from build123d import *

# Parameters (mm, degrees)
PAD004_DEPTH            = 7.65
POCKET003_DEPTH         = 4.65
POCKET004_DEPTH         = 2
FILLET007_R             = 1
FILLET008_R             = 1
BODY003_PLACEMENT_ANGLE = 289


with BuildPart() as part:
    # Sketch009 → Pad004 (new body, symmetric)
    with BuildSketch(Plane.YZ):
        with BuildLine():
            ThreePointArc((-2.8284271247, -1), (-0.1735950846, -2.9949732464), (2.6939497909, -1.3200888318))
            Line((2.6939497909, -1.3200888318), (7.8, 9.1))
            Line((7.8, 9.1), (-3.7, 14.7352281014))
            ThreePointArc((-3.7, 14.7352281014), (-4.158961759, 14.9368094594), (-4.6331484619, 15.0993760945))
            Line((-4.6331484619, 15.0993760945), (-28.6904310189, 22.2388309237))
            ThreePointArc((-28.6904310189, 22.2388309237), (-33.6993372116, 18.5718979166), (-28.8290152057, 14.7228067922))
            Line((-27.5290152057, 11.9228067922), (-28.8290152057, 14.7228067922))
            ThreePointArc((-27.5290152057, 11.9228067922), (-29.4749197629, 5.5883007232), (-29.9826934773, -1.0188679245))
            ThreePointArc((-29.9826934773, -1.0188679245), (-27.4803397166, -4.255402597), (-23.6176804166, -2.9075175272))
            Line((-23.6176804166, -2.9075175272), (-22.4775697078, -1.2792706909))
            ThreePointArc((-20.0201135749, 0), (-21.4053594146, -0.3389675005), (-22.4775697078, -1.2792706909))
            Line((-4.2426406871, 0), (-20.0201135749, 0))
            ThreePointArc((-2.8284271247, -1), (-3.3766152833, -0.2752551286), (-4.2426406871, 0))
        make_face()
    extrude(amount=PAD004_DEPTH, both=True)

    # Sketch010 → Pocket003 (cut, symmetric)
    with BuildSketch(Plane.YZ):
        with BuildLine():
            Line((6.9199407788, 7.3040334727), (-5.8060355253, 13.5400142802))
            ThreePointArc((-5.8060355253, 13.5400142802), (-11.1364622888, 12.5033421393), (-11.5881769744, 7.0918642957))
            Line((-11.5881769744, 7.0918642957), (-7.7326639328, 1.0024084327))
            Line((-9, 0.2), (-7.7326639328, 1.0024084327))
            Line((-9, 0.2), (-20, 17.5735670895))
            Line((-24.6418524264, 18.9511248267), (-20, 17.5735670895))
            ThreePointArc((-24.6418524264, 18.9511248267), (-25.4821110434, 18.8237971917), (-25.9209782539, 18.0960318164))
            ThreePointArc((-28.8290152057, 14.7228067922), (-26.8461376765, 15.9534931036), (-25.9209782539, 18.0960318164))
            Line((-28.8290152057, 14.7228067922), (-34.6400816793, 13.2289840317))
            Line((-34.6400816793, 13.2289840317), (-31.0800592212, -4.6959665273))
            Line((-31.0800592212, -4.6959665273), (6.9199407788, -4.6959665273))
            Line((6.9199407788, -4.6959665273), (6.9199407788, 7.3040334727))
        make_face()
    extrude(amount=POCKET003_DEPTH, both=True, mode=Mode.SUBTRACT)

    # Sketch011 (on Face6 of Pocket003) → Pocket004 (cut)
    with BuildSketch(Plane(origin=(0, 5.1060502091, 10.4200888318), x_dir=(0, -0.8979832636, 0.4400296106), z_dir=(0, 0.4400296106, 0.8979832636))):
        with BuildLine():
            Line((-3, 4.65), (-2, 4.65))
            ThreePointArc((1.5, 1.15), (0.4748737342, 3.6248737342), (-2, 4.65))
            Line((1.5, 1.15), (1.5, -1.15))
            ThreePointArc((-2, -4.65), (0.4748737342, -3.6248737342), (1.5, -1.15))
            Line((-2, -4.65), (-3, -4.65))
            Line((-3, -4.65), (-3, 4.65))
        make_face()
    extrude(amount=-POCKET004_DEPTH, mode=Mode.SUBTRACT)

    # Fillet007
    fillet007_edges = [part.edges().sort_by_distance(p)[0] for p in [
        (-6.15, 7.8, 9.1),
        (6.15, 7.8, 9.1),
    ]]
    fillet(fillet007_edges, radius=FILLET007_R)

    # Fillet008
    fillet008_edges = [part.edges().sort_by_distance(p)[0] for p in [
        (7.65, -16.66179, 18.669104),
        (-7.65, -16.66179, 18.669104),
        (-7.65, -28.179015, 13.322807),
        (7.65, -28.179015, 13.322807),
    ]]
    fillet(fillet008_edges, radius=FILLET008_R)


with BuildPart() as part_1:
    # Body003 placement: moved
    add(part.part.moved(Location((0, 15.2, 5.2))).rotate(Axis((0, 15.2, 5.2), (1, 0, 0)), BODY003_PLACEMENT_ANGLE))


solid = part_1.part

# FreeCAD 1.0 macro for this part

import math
import FreeCAD as App
import Part
import Sketcher

V = App.Vector
Q = App.Units.Quantity


def edges_at(feature, points):
    """Names of the edges that pass closest to the given points."""
    edges = feature.Shape.Edges
    near = lambda p: min(range(len(edges)), key=lambda i: edges[i].distToShape(Part.Vertex(*p))[0])
    return sorted({f"Edge{near(p) + 1}" for p in points})

doc = App.newDocument("Part")
params = doc.addObject("Spreadsheet::Sheet", "Params")
for row, (alias, value) in enumerate([
    ("sketch1_radius", "3 mm"),
    ("sketch1_radius2", "6 mm"),
    ("sketch1_radius3", "30 mm"),
    ("sketch1_radius4", "3.9 mm"),
    ("sketch1_radius5", "3.5 mm"),
    ("pad1_length", "15.3 mm"),
    ("sketch2_radius", "1 mm"),
    ("sketch2_radius2", "4.5 mm"),
    ("sketch2_radius3", "3.9 mm"),
    ("sketch2_width", "38 mm"),
    ("sketch2_height", "12 mm"),
    ("pocket1_length", "9.3 mm"),
    ("sketch3_radius", "3.5 mm"),
    ("sketch3_width", "1 mm"),
    ("sketch3_height", "9.3 mm"),
    ("pocket2_length", "2 mm"),
    ("fillet_radius", "1 mm"),
    ("fillet2_radius", "1 mm"),
], start=1):
    params.set(f"A{row}", alias)
    params.set(f"B{row}", "=" + value)
    params.setAlias(f"B{row}", alias)

body = doc.addObject("PartDesign::Body", "Body")

# Sketch on YZ plane
sketch1 = body.newObject("Sketcher::SketchObject", "Sketch")
sketch1.AttachmentSupport = (doc.getObject("YZ_Plane"), [""])
sketch1.MapMode = "FlatFace"
sketch1.addGeometry(Part.ArcOfCircle(Part.Circle(V(0, 0, 0), V(0, 0, 1), 3), math.radians(-161), math.radians(-26)), False)
sketch1.addGeometry(Part.LineSegment(V(2.7, -1.3, 0), V(7.8, 9.1, 0)), False)
sketch1.addGeometry(Part.LineSegment(V(7.8, 9.1, 0), V(-3.7, 14.7, 0)), False)
sketch1.addGeometry(Part.ArcOfCircle(Part.Circle(V(-6.3, 9.3, 0), V(0, 0, 1), 6), math.radians(63.89), math.radians(73.47)), False)
sketch1.addGeometry(Part.LineSegment(V(-4.6, 15.1, 0), V(-28.7, 22.2, 0)), False)
sketch1.addGeometry(Part.ArcOfCircle(Part.Circle(V(-29.8, 18.5, 0), V(0, 0, 1), 3.9), math.radians(73), math.radians(284)), False)
sketch1.addGeometry(Part.LineSegment(V(-28.8, 14.7, 0), V(-27.5, 11.9, 0)), False)
sketch1.addGeometry(Part.ArcOfCircle(Part.Circle(V(0, 0, 0), V(0, 0, 1), 30), math.radians(157), math.radians(182)), False)
sketch1.addGeometry(Part.ArcOfCircle(Part.Circle(V(-26.5, -0.9, 0), V(0, 0, 1), 3.5), math.radians(-178), math.radians(-35)), False)
sketch1.addGeometry(Part.LineSegment(V(-23.6, -2.9, 0), V(-22.5, -1.3, 0)), False)
sketch1.addGeometry(Part.ArcOfCircle(Part.Circle(V(-20, -3, 0), V(0, 0, 1), 3), math.radians(90), math.radians(145)), False)
sketch1.addGeometry(Part.LineSegment(V(-20, 0, 0), V(-4.2, 0, 0)), False)
sketch1.addGeometry(Part.ArcOfCircle(Part.Circle(V(-4.2, -1.5, 0), V(0, 0, 1), 1.5), math.radians(19), math.radians(90)), False)
sketch1.addConstraint(Sketcher.Constraint("Tangent", 0, 2, 1, 1))
sketch1.addConstraint(Sketcher.Constraint("Coincident", 1, 2, 2, 1))
sketch1.addConstraint(Sketcher.Constraint("Tangent", 2, 2, 3, 1))
sketch1.addConstraint(Sketcher.Constraint("Tangent", 3, 2, 4, 1))
sketch1.addConstraint(Sketcher.Constraint("Tangent", 4, 2, 5, 1))
sketch1.addConstraint(Sketcher.Constraint("Coincident", 5, 2, 6, 1))
sketch1.addConstraint(Sketcher.Constraint("Coincident", 6, 2, 7, 1))
sketch1.addConstraint(Sketcher.Constraint("Tangent", 7, 2, 8, 1))
sketch1.addConstraint(Sketcher.Constraint("Tangent", 8, 2, 9, 1))
sketch1.addConstraint(Sketcher.Constraint("Tangent", 9, 2, 10, 2))
sketch1.addConstraint(Sketcher.Constraint("Tangent", 10, 1, 11, 1))
sketch1.addConstraint(Sketcher.Constraint("Tangent", 11, 2, 12, 2))
sketch1.addConstraint(Sketcher.Constraint("Tangent", 12, 1, 0, 1))
sketch1.addConstraint(Sketcher.Constraint("Horizontal", 11))
sketch1.addConstraint(Sketcher.Constraint("Coincident", 0, 3, -1, 1))
sketch1.addConstraint(Sketcher.Constraint("Coincident", 7, 3, -1, 1))
sketch1.addConstraint(Sketcher.Constraint("Equal", 0, 10))
sketch1.addConstraint(Sketcher.Constraint("PointOnObject", 10, 1, -1))
sketch1.addConstraint(Sketcher.Constraint("Perpendicular", 1, 2))
sketch1.addConstraint(Sketcher.Constraint("Radius", 0, Q("3 mm")))
sketch1.addConstraint(Sketcher.Constraint("Radius", 3, Q("6 mm")))
sketch1.addConstraint(Sketcher.Constraint("Radius", 7, Q("30 mm")))
sketch1.addConstraint(Sketcher.Constraint("Radius", 5, Q("3.9 mm")))
sketch1.addConstraint(Sketcher.Constraint("Radius", 8, Q("3.5 mm")))
sketch1.addConstraint(Sketcher.Constraint("Radius", 12, Q("1.5 mm")))
sketch1.addConstraint(Sketcher.Constraint("Angle", 9, Q("55 deg")))
sketch1.addConstraint(Sketcher.Constraint("DistanceX", 5, 3, -1, 1, Q("29.8 mm")))
sketch1.addConstraint(Sketcher.Constraint("DistanceY", -1, 1, 5, 3, Q("18.5 mm")))
sketch1.addConstraint(Sketcher.Constraint("DistanceY", 8, 3, -1, 1, Q("0.9 mm")))
sketch1.addConstraint(Sketcher.Constraint("DistanceX", -1, 1, 1, 2, Q("7.8 mm")))
sketch1.addConstraint(Sketcher.Constraint("DistanceY", -1, 1, 1, 2, Q("9.1 mm")))
sketch1.addConstraint(Sketcher.Constraint("DistanceX", 2, 2, -1, 1, Q("3.7 mm")))
sketch1.addConstraint(Sketcher.Constraint("DistanceX", 5, 2, 6, 2, Q("1.3 mm")))
sketch1.addConstraint(Sketcher.Constraint("DistanceY", 6, 2, 5, 2, Q("2.8 mm")))
sketch1.setExpression("Constraints[19]", "Params.sketch1_radius")
sketch1.setExpression("Constraints[20]", "Params.sketch1_radius2")
sketch1.setExpression("Constraints[21]", "Params.sketch1_radius3")
sketch1.setExpression("Constraints[22]", "Params.sketch1_radius4")
sketch1.setExpression("Constraints[23]", "Params.sketch1_radius5")
pad1 = body.newObject("PartDesign::Pad", "Pad")
pad1.Profile = sketch1
pad1.setExpression("Length", "Params.pad1_length")
pad1.Midplane = True

# Sketch on YZ plane
sketch2 = body.newObject("Sketcher::SketchObject", "Sketch001")
sketch2.AttachmentSupport = (doc.getObject("YZ_Plane"), [""])
sketch2.MapMode = "FlatFace"
sketch2.addGeometry(Part.LineSegment(V(6.9, 7.3, 0), V(-5.8, 13.5, 0)), False)
sketch2.addGeometry(Part.ArcOfCircle(Part.Circle(V(-7.8, 9.5, 0), V(0, 0, 1), 4.5), math.radians(64), math.radians(212)), False)
sketch2.addGeometry(Part.LineSegment(V(-11.6, 7.1, 0), V(-7.7, 1, 0)), False)
sketch2.addGeometry(Part.LineSegment(V(-7.7, 1, 0), V(-9, 0.2, 0)), False)
sketch2.addGeometry(Part.LineSegment(V(-9, 0.2, 0), V(-20, 17.6, 0)), False)
sketch2.addGeometry(Part.LineSegment(V(-20, 17.6, 0), V(-24.6, 19, 0)), False)
sketch2.addGeometry(Part.ArcOfCircle(Part.Circle(V(-24.9, 18, 0), V(0, 0, 1), 1), math.radians(73), math.radians(174)), False)
sketch2.addGeometry(Part.ArcOfCircle(Part.Circle(V(-29.8, 18.5, 0), V(0, 0, 1), 3.9), math.radians(-76), math.radians(-6)), False)
sketch2.addGeometry(Part.LineSegment(V(-28.8, 14.7, 0), V(-34.6, 13.2, 0)), False)
sketch2.addGeometry(Part.LineSegment(V(-34.6, 13.2, 0), V(-31.1, -4.7, 0)), False)
sketch2.addGeometry(Part.LineSegment(V(-31.1, -4.7, 0), V(6.9, -4.7, 0)), False)
sketch2.addGeometry(Part.LineSegment(V(6.9, -4.7, 0), V(6.9, 7.3, 0)), False)
sketch2.addConstraint(Sketcher.Constraint("Tangent", 0, 2, 1, 1))
sketch2.addConstraint(Sketcher.Constraint("Tangent", 1, 2, 2, 1))
sketch2.addConstraint(Sketcher.Constraint("Coincident", 2, 2, 3, 1))
sketch2.addConstraint(Sketcher.Constraint("Coincident", 3, 2, 4, 1))
sketch2.addConstraint(Sketcher.Constraint("Coincident", 4, 2, 5, 1))
sketch2.addConstraint(Sketcher.Constraint("Tangent", 5, 2, 6, 1))
sketch2.addConstraint(Sketcher.Constraint("Tangent", 6, 2, 7, 2))
sketch2.addConstraint(Sketcher.Constraint("Tangent", 7, 1, 8, 1))
sketch2.addConstraint(Sketcher.Constraint("Coincident", 8, 2, 9, 1))
sketch2.addConstraint(Sketcher.Constraint("Coincident", 9, 2, 10, 1))
sketch2.addConstraint(Sketcher.Constraint("Coincident", 10, 2, 11, 1))
sketch2.addConstraint(Sketcher.Constraint("Coincident", 11, 2, 0, 1))
sketch2.addConstraint(Sketcher.Constraint("Horizontal", 10))
sketch2.addConstraint(Sketcher.Constraint("Vertical", 11))
sketch2.addConstraint(Sketcher.Constraint("Perpendicular", 2, 3))
sketch2.addConstraint(Sketcher.Constraint("Perpendicular", 3, 4))
sketch2.addConstraint(Sketcher.Constraint("Radius", 6, Q("1 mm")))
sketch2.addConstraint(Sketcher.Constraint("Radius", 1, Q("4.5 mm")))
sketch2.addConstraint(Sketcher.Constraint("Radius", 7, Q("3.9 mm")))
sketch2.addConstraint(Sketcher.Constraint("DistanceX", 10, 1, 10, 2, Q("38 mm")))
sketch2.addConstraint(Sketcher.Constraint("DistanceY", 11, 1, 11, 2, Q("12 mm")))
sketch2.addConstraint(Sketcher.Constraint("Distance", 8, Q("6 mm")))
sketch2.addConstraint(Sketcher.Constraint("DistanceX", 3, 2, -1, 1, Q("9 mm")))
sketch2.addConstraint(Sketcher.Constraint("DistanceX", 4, 2, -1, 1, Q("20 mm")))
sketch2.addConstraint(Sketcher.Constraint("Distance", 3, Q("1.5 mm")))
sketch2.addConstraint(Sketcher.Constraint("DistanceX", 7, 3, -1, 1, Q("29.8 mm")))
sketch2.addConstraint(Sketcher.Constraint("DistanceY", -1, 1, 7, 3, Q("18.5 mm")))
sketch2.addConstraint(Sketcher.Constraint("DistanceY", -1, 1, 3, 2, Q("0.2 mm")))
sketch2.addConstraint(Sketcher.Constraint("DistanceX", 6, 2, 1, 2, Q("14.332801 mm")))
sketch2.addConstraint(Sketcher.Constraint("Distance", 0, Q("14.17173 mm")))
sketch2.addConstraint(Sketcher.Constraint("Distance", 2, Q("7.207389 mm")))
sketch2.addConstraint(Sketcher.Constraint("DistanceX", 1, 3, -1, 1, Q("7.786169 mm")))
sketch2.addConstraint(Sketcher.Constraint("DistanceX", 8, 2, -1, 1, Q("34.640082 mm")))
sketch2.addConstraint(Sketcher.Constraint("DistanceX", 9, 2, -1, 1, Q("31.080059 mm")))
sketch2.setExpression("Constraints[16]", "Params.sketch2_radius")
sketch2.setExpression("Constraints[17]", "Params.sketch2_radius2")
sketch2.setExpression("Constraints[18]", "Params.sketch2_radius3")
sketch2.setExpression("Constraints[19]", "Params.sketch2_width")
sketch2.setExpression("Constraints[20]", "Params.sketch2_height")
pocket1 = body.newObject("PartDesign::Pocket", "Pocket")
pocket1.Profile = sketch2
pocket1.setExpression("Length", "Params.pocket1_length")
pocket1.Midplane = True

# Sketch on an angled plane
sketch3 = body.newObject("Sketcher::SketchObject", "Sketch002")
sketch3.Placement = App.Placement(V(0, 5.10605, 10.420089), App.Rotation(V(0, -0.897983264, 0.440029611), V(1.000000001, 0, 0), V(0, 0.440029611, 0.897983264), "ZXY"))
sketch3.addGeometry(Part.LineSegment(V(-2, 4.7, 0), V(-3, 4.7, 0)), False)
sketch3.addGeometry(Part.LineSegment(V(-3, 4.7, 0), V(-3, -4.7, 0)), False)
sketch3.addGeometry(Part.LineSegment(V(-3, -4.7, 0), V(-2, -4.7, 0)), False)
sketch3.addGeometry(Part.ArcOfCircle(Part.Circle(V(-2, -1.2, 0), V(0, 0, 1), 3.5), math.radians(-90), math.radians(0)), False)
sketch3.addGeometry(Part.LineSegment(V(1.5, -1.2, 0), V(1.5, 1.2, 0)), False)
sketch3.addGeometry(Part.ArcOfCircle(Part.Circle(V(-2, 1.2, 0), V(0, 0, 1), 3.5), math.radians(0), math.radians(90)), False)
sketch3.addConstraint(Sketcher.Constraint("Coincident", 0, 2, 1, 1))
sketch3.addConstraint(Sketcher.Constraint("Coincident", 1, 2, 2, 1))
sketch3.addConstraint(Sketcher.Constraint("Tangent", 2, 2, 3, 1))
sketch3.addConstraint(Sketcher.Constraint("Tangent", 3, 2, 4, 1))
sketch3.addConstraint(Sketcher.Constraint("Tangent", 4, 2, 5, 1))
sketch3.addConstraint(Sketcher.Constraint("Tangent", 5, 2, 0, 1))
sketch3.addConstraint(Sketcher.Constraint("Horizontal", 0))
sketch3.addConstraint(Sketcher.Constraint("Vertical", 1))
sketch3.addConstraint(Sketcher.Constraint("Horizontal", 2))
sketch3.addConstraint(Sketcher.Constraint("Vertical", 4))
sketch3.addConstraint(Sketcher.Constraint("Equal", 3, 5))
sketch3.addConstraint(Sketcher.Constraint("Radius", 3, Q("3.5 mm")))
sketch3.addConstraint(Sketcher.Constraint("DistanceX", 0, 2, 0, 1, Q("1 mm")))
sketch3.addConstraint(Sketcher.Constraint("DistanceY", 1, 2, 1, 1, Q("9.3 mm")))
sketch3.addConstraint(Sketcher.Constraint("DistanceX", 3, 3, -1, 1, Q("2 mm")))
sketch3.addConstraint(Sketcher.Constraint("DistanceY", 3, 3, -1, 1, Q("1.15 mm")))
sketch3.setExpression("Constraints[11]", "Params.sketch3_radius")
sketch3.setExpression("Constraints[12]", "Params.sketch3_width")
sketch3.setExpression("Constraints[13]", "Params.sketch3_height")
pocket2 = body.newObject("PartDesign::Pocket", "Pocket001")
pocket2.Profile = sketch3
pocket2.setExpression("Length", "Params.pocket2_length")
doc.recompute()

fillet = body.newObject("PartDesign::Fillet", "Fillet")
fillet.Base = (pocket2, edges_at(pocket2, [(-6.15, 7.8, 9.1), (6.15, 7.8, 9.1)]))
fillet.setExpression("Radius", "Params.fillet_radius")
doc.recompute()

fillet2 = body.newObject("PartDesign::Fillet", "Fillet001")
fillet2.Base = (fillet, edges_at(fillet, [
    (7.65, -16.662, 18.669),
    (-7.65, -16.662, 18.669),
    (-7.65, -28.179, 13.323),
    (7.65, -28.179, 13.323),
]))
fillet2.setExpression("Radius", "Params.fillet2_radius")
body2 = doc.addObject("PartDesign::Body", "Body001")
doc.recompute()

body.Placement = App.Placement(V(0, 15.2, 5.2), App.Rotation(V(1, 0, 0), 289))
boolean = body2.newObject("PartDesign::Boolean", "Boolean")
boolean.Type = "Fuse"
boolean.addObjects([body])

doc.recompute()
